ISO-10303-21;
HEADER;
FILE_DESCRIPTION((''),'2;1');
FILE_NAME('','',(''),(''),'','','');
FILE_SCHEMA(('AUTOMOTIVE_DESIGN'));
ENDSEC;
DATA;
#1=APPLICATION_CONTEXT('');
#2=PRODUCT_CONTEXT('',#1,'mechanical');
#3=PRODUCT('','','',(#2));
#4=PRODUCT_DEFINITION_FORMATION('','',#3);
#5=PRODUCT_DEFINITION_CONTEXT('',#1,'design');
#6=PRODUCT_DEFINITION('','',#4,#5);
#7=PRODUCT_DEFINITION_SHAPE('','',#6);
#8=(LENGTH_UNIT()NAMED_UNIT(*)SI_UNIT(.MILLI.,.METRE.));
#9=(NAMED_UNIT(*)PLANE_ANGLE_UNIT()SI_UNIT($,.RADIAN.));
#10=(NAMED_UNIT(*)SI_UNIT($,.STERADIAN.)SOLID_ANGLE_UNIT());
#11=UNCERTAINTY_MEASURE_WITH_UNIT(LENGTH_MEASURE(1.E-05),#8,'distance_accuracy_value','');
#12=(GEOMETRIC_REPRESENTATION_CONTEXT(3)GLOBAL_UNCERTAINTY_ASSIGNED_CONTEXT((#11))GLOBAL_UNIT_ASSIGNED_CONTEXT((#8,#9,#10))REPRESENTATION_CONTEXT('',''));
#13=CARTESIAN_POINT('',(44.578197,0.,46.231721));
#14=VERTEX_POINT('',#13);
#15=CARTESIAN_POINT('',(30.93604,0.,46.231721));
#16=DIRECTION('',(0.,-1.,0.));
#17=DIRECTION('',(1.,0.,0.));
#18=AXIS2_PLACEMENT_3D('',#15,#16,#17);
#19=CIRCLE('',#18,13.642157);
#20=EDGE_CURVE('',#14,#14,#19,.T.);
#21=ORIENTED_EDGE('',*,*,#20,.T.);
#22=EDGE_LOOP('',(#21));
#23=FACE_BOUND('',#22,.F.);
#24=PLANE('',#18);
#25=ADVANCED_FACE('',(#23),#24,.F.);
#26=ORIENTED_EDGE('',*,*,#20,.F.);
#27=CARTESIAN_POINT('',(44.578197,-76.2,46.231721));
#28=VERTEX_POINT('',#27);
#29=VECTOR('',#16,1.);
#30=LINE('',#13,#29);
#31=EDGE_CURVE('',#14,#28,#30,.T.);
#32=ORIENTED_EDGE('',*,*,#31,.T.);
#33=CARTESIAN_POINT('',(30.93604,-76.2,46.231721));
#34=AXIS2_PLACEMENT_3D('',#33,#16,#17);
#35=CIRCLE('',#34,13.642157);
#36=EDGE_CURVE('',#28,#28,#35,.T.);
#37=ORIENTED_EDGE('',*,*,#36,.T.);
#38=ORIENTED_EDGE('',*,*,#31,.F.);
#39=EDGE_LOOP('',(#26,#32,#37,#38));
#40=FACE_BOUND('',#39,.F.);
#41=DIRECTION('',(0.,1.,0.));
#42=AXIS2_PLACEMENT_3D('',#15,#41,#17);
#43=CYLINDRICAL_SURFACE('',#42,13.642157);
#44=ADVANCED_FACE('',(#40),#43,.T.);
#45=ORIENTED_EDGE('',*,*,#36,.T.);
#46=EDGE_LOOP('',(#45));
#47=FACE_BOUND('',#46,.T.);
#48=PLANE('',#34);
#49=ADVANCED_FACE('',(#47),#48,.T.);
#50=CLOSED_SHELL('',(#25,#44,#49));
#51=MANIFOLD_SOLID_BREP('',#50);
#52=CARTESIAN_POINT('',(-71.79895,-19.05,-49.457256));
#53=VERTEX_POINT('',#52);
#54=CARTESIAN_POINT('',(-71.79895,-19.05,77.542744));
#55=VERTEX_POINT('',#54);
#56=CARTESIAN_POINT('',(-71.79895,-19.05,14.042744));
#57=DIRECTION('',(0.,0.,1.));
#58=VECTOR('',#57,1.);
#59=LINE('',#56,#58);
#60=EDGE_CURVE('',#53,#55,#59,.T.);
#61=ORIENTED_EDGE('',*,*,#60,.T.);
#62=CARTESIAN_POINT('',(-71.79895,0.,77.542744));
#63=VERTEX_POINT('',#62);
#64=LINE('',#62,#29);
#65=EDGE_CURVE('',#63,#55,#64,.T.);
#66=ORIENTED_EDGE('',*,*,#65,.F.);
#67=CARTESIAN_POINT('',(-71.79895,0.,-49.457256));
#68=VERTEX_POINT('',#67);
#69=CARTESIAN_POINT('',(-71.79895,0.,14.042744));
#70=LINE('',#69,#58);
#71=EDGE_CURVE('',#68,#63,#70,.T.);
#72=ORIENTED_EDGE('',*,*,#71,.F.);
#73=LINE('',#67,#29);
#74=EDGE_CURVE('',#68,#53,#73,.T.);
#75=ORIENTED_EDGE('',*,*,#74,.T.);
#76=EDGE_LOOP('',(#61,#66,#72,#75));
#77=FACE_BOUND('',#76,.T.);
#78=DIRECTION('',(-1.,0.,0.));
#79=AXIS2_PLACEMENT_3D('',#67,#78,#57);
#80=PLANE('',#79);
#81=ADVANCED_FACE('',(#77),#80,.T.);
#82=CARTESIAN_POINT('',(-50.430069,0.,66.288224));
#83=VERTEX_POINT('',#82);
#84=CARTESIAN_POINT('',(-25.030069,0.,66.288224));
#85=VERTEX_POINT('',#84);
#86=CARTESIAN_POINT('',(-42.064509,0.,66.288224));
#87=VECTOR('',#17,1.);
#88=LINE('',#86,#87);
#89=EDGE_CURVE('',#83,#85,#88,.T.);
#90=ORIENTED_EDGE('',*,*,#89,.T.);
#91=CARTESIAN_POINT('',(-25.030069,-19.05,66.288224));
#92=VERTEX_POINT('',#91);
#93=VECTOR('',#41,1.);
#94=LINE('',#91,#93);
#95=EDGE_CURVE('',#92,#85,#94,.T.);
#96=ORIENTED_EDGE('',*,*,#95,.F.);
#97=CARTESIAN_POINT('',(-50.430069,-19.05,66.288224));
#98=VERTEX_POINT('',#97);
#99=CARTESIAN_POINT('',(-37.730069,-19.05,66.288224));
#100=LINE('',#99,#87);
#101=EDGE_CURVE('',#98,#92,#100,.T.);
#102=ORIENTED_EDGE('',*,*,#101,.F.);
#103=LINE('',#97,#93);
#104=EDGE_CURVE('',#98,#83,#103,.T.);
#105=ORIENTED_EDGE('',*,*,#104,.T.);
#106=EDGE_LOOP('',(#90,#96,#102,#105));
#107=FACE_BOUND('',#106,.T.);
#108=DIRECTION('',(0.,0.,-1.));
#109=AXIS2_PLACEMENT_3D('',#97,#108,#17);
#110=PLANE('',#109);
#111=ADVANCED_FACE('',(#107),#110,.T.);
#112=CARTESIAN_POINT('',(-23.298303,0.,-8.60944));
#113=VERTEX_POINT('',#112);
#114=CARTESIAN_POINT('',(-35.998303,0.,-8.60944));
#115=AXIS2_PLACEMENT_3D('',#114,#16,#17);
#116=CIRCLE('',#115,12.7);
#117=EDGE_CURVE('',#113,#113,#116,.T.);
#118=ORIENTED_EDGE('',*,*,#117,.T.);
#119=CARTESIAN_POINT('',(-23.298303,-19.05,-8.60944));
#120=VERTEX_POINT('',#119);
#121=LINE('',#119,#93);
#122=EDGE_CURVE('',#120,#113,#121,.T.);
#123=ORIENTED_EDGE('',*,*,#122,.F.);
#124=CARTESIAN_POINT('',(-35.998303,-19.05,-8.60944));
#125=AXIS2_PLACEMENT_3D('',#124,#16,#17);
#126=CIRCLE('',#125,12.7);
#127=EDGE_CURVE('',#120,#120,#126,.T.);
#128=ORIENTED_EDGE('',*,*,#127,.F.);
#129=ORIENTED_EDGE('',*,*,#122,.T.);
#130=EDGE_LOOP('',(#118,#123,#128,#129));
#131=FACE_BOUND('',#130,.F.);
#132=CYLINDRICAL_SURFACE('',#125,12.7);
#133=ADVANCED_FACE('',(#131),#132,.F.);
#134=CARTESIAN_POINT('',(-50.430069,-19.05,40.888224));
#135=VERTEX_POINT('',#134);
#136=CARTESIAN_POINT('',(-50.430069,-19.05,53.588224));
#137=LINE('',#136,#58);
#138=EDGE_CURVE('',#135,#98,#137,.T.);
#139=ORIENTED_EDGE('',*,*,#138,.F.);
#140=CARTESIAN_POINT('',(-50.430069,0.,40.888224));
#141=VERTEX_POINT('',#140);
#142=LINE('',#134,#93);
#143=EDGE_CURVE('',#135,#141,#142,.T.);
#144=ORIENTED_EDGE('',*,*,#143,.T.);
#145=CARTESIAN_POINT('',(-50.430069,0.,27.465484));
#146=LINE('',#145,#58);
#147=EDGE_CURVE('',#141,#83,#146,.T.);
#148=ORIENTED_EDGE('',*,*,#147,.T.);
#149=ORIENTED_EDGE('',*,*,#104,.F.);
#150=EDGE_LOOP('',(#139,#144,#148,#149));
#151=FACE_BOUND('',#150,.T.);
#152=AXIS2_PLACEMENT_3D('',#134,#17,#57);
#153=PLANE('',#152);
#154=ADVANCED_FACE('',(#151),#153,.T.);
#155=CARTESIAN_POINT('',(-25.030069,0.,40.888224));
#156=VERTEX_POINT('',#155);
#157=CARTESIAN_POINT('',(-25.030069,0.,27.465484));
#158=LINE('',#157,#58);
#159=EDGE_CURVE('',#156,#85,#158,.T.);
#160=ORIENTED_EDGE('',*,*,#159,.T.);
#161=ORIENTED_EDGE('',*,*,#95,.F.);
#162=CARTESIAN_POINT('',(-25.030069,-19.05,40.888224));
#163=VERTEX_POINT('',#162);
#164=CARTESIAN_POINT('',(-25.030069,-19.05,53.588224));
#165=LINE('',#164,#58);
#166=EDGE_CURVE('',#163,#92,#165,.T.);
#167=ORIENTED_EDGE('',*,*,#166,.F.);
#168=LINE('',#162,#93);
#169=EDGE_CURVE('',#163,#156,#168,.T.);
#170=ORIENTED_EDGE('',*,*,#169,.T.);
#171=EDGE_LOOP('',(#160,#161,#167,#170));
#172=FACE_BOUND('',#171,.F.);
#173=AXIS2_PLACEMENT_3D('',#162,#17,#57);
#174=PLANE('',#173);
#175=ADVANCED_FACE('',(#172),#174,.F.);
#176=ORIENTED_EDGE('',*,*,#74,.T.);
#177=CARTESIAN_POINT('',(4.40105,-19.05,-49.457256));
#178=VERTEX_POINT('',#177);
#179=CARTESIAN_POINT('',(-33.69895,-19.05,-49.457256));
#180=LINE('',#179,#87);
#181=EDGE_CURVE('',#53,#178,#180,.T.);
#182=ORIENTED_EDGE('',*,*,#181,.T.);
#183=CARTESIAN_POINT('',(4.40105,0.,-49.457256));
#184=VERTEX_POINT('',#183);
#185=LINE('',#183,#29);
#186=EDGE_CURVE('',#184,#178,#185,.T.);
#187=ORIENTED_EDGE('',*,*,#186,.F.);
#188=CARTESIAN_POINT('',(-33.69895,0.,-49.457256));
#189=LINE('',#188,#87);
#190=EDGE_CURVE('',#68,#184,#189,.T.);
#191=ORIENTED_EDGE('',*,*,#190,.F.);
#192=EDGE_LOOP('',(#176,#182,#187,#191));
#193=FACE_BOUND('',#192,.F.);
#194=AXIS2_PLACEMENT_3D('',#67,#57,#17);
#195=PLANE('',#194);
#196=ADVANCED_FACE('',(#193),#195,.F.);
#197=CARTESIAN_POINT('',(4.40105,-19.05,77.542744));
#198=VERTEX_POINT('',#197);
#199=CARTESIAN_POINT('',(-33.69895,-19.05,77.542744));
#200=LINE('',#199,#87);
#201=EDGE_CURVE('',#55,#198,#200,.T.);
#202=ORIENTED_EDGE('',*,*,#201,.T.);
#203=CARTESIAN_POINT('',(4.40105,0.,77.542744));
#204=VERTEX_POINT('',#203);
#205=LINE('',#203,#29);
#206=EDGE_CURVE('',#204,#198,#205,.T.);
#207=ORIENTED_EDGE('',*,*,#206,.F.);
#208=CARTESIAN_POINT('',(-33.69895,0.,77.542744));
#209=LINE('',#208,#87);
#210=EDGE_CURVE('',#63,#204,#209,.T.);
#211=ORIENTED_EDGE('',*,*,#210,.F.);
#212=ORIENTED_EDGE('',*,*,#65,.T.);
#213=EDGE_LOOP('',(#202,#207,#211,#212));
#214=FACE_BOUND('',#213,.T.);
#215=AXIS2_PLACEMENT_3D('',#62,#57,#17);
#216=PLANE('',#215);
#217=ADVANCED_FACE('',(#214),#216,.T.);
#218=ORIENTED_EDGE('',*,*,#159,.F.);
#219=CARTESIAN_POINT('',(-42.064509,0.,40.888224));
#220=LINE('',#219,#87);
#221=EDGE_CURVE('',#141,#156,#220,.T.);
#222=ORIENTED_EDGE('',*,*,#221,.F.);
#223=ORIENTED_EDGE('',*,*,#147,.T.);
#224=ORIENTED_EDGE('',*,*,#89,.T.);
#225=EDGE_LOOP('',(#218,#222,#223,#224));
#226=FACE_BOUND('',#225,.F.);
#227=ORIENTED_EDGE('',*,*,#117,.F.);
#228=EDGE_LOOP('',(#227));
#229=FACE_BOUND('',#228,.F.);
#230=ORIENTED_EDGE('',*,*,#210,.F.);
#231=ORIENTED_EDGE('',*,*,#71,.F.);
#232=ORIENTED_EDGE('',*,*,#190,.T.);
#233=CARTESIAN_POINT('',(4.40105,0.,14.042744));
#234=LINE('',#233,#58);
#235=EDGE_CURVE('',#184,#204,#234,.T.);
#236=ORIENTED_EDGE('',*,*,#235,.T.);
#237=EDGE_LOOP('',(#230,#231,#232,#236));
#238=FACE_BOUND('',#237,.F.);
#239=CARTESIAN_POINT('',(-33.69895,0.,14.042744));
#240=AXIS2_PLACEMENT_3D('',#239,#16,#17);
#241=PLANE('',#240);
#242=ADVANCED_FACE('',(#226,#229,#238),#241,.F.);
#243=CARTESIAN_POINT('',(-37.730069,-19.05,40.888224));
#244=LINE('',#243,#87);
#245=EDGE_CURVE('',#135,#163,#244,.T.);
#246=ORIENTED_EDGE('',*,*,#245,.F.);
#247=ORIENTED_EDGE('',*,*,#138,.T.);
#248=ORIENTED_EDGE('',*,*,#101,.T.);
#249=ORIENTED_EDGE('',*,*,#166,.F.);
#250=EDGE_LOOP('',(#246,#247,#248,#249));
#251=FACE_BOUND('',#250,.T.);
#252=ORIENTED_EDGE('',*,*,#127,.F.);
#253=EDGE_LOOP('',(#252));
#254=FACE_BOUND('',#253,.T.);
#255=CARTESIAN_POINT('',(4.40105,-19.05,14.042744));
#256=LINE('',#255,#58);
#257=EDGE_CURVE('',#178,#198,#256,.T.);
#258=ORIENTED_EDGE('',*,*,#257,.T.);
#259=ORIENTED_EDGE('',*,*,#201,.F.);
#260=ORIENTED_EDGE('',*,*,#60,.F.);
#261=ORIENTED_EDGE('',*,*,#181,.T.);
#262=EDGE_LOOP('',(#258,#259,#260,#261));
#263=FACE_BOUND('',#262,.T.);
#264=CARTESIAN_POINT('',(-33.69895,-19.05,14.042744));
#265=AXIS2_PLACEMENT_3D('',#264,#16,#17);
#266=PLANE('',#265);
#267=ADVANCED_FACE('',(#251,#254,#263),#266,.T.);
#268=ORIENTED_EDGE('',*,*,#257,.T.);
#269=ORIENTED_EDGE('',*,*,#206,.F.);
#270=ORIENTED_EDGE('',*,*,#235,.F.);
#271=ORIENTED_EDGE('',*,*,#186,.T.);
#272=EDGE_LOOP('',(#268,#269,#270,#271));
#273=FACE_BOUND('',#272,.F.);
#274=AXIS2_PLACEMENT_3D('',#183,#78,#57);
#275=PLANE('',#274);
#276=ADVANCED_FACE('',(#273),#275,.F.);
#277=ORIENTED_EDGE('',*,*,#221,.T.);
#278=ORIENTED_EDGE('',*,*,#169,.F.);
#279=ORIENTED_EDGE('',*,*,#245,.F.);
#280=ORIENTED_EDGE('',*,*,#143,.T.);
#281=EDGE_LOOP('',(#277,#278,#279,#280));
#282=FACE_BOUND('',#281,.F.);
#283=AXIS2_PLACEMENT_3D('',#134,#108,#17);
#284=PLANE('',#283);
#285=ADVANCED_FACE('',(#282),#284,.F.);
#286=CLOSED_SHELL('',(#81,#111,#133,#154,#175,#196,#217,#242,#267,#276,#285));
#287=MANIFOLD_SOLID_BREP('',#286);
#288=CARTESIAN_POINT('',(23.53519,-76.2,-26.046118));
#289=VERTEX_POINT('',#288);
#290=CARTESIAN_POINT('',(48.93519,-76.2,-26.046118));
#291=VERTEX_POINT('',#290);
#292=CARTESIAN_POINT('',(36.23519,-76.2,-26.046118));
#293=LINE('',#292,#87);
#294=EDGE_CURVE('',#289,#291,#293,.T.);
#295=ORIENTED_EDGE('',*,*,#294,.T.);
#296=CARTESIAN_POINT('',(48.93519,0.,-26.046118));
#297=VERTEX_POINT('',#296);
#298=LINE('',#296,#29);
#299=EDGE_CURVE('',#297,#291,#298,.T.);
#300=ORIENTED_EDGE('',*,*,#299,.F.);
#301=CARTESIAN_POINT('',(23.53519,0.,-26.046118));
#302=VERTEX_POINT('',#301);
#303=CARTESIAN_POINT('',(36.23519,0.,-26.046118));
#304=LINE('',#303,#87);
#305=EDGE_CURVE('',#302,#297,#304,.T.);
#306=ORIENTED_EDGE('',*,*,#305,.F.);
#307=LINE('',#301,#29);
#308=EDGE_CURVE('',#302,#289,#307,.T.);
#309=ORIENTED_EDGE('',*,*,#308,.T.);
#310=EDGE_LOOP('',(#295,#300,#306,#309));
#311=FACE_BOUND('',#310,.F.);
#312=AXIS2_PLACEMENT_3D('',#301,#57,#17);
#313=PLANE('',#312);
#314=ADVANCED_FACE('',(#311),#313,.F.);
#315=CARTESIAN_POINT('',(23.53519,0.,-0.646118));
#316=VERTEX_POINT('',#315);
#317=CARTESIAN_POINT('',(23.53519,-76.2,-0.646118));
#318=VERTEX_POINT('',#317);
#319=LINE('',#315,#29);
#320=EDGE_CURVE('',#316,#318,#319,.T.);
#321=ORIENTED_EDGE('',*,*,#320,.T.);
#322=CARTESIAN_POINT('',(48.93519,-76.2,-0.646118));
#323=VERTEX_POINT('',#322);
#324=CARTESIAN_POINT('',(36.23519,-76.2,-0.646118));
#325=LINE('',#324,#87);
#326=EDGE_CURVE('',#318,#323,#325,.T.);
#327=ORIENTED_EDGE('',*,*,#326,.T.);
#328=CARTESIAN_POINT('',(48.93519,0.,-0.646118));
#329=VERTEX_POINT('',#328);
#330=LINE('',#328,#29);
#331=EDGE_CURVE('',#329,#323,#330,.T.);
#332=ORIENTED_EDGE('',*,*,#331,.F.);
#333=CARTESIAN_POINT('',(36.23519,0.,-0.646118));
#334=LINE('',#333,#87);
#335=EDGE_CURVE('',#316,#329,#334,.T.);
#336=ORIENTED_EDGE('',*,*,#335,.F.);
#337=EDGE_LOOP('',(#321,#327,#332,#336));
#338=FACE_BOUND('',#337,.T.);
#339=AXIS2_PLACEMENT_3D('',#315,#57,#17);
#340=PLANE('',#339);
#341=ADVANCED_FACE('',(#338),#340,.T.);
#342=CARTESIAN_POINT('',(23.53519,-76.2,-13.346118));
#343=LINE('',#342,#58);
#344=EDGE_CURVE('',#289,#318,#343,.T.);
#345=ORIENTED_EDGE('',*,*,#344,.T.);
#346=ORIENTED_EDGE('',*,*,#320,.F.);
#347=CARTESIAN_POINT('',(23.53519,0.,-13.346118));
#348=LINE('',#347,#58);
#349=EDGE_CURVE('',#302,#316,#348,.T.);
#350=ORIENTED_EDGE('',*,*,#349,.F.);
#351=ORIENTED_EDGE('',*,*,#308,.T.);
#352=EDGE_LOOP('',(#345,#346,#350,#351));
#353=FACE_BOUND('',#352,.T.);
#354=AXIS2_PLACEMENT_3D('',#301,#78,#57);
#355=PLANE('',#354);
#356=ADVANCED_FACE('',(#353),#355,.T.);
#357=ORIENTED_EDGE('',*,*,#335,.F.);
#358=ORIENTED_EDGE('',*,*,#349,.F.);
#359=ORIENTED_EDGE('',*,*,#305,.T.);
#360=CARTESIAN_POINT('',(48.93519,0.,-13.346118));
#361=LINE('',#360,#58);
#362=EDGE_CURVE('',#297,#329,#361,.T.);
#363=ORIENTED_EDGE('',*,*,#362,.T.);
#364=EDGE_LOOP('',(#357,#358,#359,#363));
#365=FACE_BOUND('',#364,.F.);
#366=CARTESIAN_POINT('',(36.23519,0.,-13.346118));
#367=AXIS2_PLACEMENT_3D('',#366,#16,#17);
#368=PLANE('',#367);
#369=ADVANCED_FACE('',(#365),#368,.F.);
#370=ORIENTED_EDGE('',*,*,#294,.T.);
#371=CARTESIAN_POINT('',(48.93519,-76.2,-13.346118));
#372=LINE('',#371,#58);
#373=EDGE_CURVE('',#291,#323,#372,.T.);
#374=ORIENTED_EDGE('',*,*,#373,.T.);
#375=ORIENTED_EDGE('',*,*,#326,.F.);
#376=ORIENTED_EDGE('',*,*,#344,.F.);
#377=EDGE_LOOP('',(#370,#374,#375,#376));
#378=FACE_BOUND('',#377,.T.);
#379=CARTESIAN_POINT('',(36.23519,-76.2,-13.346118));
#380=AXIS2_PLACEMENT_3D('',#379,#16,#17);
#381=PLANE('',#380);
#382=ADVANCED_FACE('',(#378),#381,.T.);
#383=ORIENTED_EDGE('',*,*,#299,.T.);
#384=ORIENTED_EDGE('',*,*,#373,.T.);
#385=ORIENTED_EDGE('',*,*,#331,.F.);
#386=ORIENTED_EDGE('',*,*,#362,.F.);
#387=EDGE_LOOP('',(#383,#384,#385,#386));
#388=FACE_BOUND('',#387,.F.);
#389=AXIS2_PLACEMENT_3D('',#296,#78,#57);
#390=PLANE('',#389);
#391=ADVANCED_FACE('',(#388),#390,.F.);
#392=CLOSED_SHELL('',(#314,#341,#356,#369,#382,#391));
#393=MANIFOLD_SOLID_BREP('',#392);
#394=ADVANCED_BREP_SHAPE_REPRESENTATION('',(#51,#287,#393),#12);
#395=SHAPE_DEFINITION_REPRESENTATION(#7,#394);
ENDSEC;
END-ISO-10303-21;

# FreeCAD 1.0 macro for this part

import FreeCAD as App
import Part
import Sketcher
from FreeCAD import Vector
Q = App.Units.Quantity


def add_polygon(sketch, points):
    """Adds a closed chain of lines whose ends are joined by coincident constraints."""
    first, n = sketch.GeometryCount, len(points)
    for a, b in zip(points, points[1:] + points[:1]):
        sketch.addGeometry(Part.LineSegment(App.Vector(*a, 0), App.Vector(*b, 0)), False)
    for i in range(n):
        sketch.addConstraint(Sketcher.Constraint("Coincident", first + i, 2, first + (i + 1) % n, 1))

doc = App.newDocument("Part")
params = doc.addObject("Spreadsheet::Sheet", "Params")
for row, (alias, value) in enumerate([
    ("sketch1_width", "3 in"),
    ("sketch1_height", "5 in"),
    ("pad1_length", "0.75 in"),
    ("sketch2_width", "1 in"),
    ("pocket1_length", "1 in"),
    ("sketch3_diameter", "1 in"),
    ("pocket2_length", "1 in"),
    ("pad2_length", "3 in"),
    ("sketch5_width", "1 in"),
    ("pad3_length", "3 in"),
], start=1):
    params.set(f"A{row}", alias)
    params.set(f"B{row}", "=" + value)
    params.setAlias(f"B{row}", alias)

body = doc.addObject("PartDesign::Body", "Body")

# Sketch on XZ plane
sketch1 = body.newObject("Sketcher::SketchObject", "Sketch")
sketch1.AttachmentSupport = (doc.getObject("XZ_Plane"), [""])
sketch1.MapMode = "FlatFace"
add_polygon(sketch1, [(-72, 78), (-72, -49), (4, -49), (4, 78)])  # lines 0-3
sketch1.addConstraint([
    Sketcher.Constraint("Vertical", 0),
    Sketcher.Constraint("Horizontal", 1),
    Sketcher.Constraint("Vertical", 2),
    Sketcher.Constraint("Horizontal", 3),
    Sketcher.Constraint("DistanceX", 1, 1, 1, 2, Q("3 in")),
    Sketcher.Constraint("DistanceY", 0, 2, 0, 1, Q("5 in")),
    Sketcher.Constraint("DistanceX", 0, 2, -1, 1, 71.79895),
    Sketcher.Constraint("DistanceY", 0, 2, -1, 1, 49.457256),
])
sketch1.setExpression("Constraints[8]", "Params.sketch1_width")
sketch1.setExpression("Constraints[9]", "Params.sketch1_height")
pad1 = body.newObject("PartDesign::Pad", "Pad")
pad1.Profile = sketch1
pad1.setExpression("Length", "Params.pad1_length")

# Sketch on XZ plane
sketch2 = body.newObject("Sketcher::SketchObject", "Sketch001")
sketch2.AttachmentSupport = (doc.getObject("XZ_Plane"), [""])
sketch2.MapMode = "FlatFace"
sketch2.AttachmentOffset = App.Placement(Vector(0, 0, 0.75 * 25.4), App.Rotation())
add_polygon(sketch2, [(-50, 66), (-50, 41), (-25, 41), (-25, 66)])  # lines 0-3
sketch2.addConstraint([
    Sketcher.Constraint("Vertical", 0),
    Sketcher.Constraint("Horizontal", 1),
    Sketcher.Constraint("Vertical", 2),
    Sketcher.Constraint("Horizontal", 3),
    Sketcher.Constraint("Equal", 3, 0),
    Sketcher.Constraint("DistanceX", 1, 1, 1, 2, Q("1 in")),
    Sketcher.Constraint("DistanceX", 0, 2, -1, 1, 50.430069),
    Sketcher.Constraint("DistanceY", -1, 1, 0, 2, 40.888224),
])
sketch2.setExpression("Constraints[9]", "Params.sketch2_width")
pocket1 = body.newObject("PartDesign::Pocket", "Pocket")
pocket1.Profile = sketch2
pocket1.setExpression("Length", "Params.pocket1_length")

# Sketch on XZ plane
sketch3 = body.newObject("Sketcher::SketchObject", "Sketch002")
sketch3.AttachmentSupport = (doc.getObject("XZ_Plane"), [""])
sketch3.MapMode = "FlatFace"
sketch3.AttachmentOffset = App.Placement(Vector(0, 0, 0.75 * 25.4), App.Rotation())
sketch3.addGeometry(Part.Circle(Vector(-36, -9, 0), Vector(0, 0, 1), 13), False)
sketch3.addConstraint([
    Sketcher.Constraint("Diameter", 0, Q("1 in")),
    Sketcher.Constraint("DistanceY", 0, 3, -1, 1, 8.60944),
    Sketcher.Constraint("DistanceX", 0, 3, -1, 1, 35.998303),
])
sketch3.setExpression("Constraints[0]", "Params.sketch3_diameter")
pocket2 = body.newObject("PartDesign::Pocket", "Pocket001")
pocket2.Profile = sketch3
pocket2.setExpression("Length", "Params.pocket2_length")
body2 = doc.addObject("PartDesign::Body", "Body001")

# Sketch on XZ plane
sketch4 = body2.newObject("Sketcher::SketchObject", "Sketch003")
sketch4.AttachmentSupport = (doc.getObject("XZ_Plane001"), [""])
sketch4.MapMode = "FlatFace"
sketch4.addGeometry(Part.Circle(Vector(31, 46, 0), Vector(0, 0, 1), 14), False)
sketch4.addConstraint([
    Sketcher.Constraint("Diameter", 0, 27.284314),
    Sketcher.Constraint("DistanceX", -1, 1, 0, 3, 30.93604),
    Sketcher.Constraint("DistanceY", -1, 1, 0, 3, 46.231721),
])
pad2 = body2.newObject("PartDesign::Pad", "Pad001")
pad2.Profile = sketch4
pad2.setExpression("Length", "Params.pad2_length")
body3 = doc.addObject("PartDesign::Body", "Body002")

# Sketch on XZ plane
sketch5 = body3.newObject("Sketcher::SketchObject", "Sketch004")
sketch5.AttachmentSupport = (doc.getObject("XZ_Plane002"), [""])
sketch5.MapMode = "FlatFace"
add_polygon(sketch5, [(24, -1), (24, -26), (49, -26), (49, -1)])  # lines 0-3
sketch5.addConstraint([
    Sketcher.Constraint("Vertical", 0),
    Sketcher.Constraint("Horizontal", 1),
    Sketcher.Constraint("Vertical", 2),
    Sketcher.Constraint("Horizontal", 3),
    Sketcher.Constraint("Equal", 3, 0),
    Sketcher.Constraint("DistanceX", 1, 1, 1, 2, Q("1 in")),
    Sketcher.Constraint("DistanceX", -1, 1, 0, 2, 23.53519),
    Sketcher.Constraint("DistanceY", 0, 2, -1, 1, 26.046118),
])
sketch5.setExpression("Constraints[9]", "Params.sketch5_width")
pad3 = body3.newObject("PartDesign::Pad", "Pad002")
pad3.Profile = sketch5
pad3.setExpression("Length", "Params.pad3_length")

doc.recompute()
